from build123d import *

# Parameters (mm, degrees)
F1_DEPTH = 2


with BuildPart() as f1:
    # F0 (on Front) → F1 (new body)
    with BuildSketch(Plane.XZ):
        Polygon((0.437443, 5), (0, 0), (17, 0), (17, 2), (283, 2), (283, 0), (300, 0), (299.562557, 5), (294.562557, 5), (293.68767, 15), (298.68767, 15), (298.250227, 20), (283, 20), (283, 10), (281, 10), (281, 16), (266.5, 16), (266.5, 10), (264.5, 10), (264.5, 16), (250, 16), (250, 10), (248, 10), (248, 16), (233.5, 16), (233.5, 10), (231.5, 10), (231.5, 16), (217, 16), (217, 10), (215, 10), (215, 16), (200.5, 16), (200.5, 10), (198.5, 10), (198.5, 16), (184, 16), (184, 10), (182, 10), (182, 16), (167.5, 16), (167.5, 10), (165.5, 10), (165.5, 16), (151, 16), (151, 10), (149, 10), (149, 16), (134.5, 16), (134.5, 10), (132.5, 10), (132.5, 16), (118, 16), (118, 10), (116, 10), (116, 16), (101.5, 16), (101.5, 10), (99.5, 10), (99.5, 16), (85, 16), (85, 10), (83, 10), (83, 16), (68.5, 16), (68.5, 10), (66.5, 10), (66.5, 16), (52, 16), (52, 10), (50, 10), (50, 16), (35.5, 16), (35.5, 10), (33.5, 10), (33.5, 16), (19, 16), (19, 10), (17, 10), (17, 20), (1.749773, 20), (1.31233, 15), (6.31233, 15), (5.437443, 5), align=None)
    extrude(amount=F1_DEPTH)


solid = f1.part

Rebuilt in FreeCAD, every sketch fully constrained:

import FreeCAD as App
import Part
import Sketcher
Q = App.Units.Quantity

doc = App.newDocument("Part")
body = doc.addObject("PartDesign::Body", "Body")

sketch1 = body.newObject("Sketcher::SketchObject", "Sketch")
sketch1.AttachmentSupport = (doc.getObject("XZ_Plane"), [""])
sketch1.MapMode = "FlatFace"
sketch1.addGeometry([
    Part.LineSegment(App.Vector(0.4, 5, 0), App.Vector(0, 0, 0)),
    Part.LineSegment(App.Vector(0, 0, 0), App.Vector(17, 0, 0)),
    Part.LineSegment(App.Vector(17, 0, 0), App.Vector(17, 2, 0)),
    Part.LineSegment(App.Vector(17, 2, 0), App.Vector(283, 2, 0)),
    Part.LineSegment(App.Vector(283, 2, 0), App.Vector(283, 0, 0)),
    Part.LineSegment(App.Vector(283, 0, 0), App.Vector(300, 0, 0)),
    Part.LineSegment(App.Vector(300, 0, 0), App.Vector(299.6, 5, 0)),
    Part.LineSegment(App.Vector(299.6, 5, 0), App.Vector(294.6, 5, 0)),
    Part.LineSegment(App.Vector(294.6, 5, 0), App.Vector(293.7, 15, 0)),
    Part.LineSegment(App.Vector(293.7, 15, 0), App.Vector(298.7, 15, 0)),
    Part.LineSegment(App.Vector(298.7, 15, 0), App.Vector(298.3, 20, 0)),
    Part.LineSegment(App.Vector(298.3, 20, 0), App.Vector(283, 20, 0)),
    Part.LineSegment(App.Vector(283, 20, 0), App.Vector(283, 10, 0)),
    Part.LineSegment(App.Vector(283, 10, 0), App.Vector(281, 10, 0)),
    Part.LineSegment(App.Vector(281, 10, 0), App.Vector(281, 16, 0)),
    Part.LineSegment(App.Vector(281, 16, 0), App.Vector(266.5, 16, 0)),
    Part.LineSegment(App.Vector(266.5, 16, 0), App.Vector(266.5, 10, 0)),
    Part.LineSegment(App.Vector(266.5, 10, 0), App.Vector(264.5, 10, 0)),
    Part.LineSegment(App.Vector(264.5, 10, 0), App.Vector(264.5, 16, 0)),
    Part.LineSegment(App.Vector(264.5, 16, 0), App.Vector(250, 16, 0)),
    Part.LineSegment(App.Vector(250, 16, 0), App.Vector(250, 10, 0)),
    Part.LineSegment(App.Vector(250, 10, 0), App.Vector(248, 10, 0)),
    Part.LineSegment(App.Vector(248, 10, 0), App.Vector(248, 16, 0)),
    Part.LineSegment(App.Vector(248, 16, 0), App.Vector(233.5, 16, 0)),
    Part.LineSegment(App.Vector(233.5, 16, 0), App.Vector(233.5, 10, 0)),
    Part.LineSegment(App.Vector(233.5, 10, 0), App.Vector(231.5, 10, 0)),
    Part.LineSegment(App.Vector(231.5, 10, 0), App.Vector(231.5, 16, 0)),
    Part.LineSegment(App.Vector(231.5, 16, 0), App.Vector(217, 16, 0)),
    Part.LineSegment(App.Vector(217, 16, 0), App.Vector(217, 10, 0)),
    Part.LineSegment(App.Vector(217, 10, 0), App.Vector(215, 10, 0)),
    Part.LineSegment(App.Vector(215, 10, 0), App.Vector(215, 16, 0)),
    Part.LineSegment(App.Vector(215, 16, 0), App.Vector(200.5, 16, 0)),
    Part.LineSegment(App.Vector(200.5, 16, 0), App.Vector(200.5, 10, 0)),
    Part.LineSegment(App.Vector(200.5, 10, 0), App.Vector(198.5, 10, 0)),
    Part.LineSegment(App.Vector(198.5, 10, 0), App.Vector(198.5, 16, 0)),
    Part.LineSegment(App.Vector(198.5, 16, 0), App.Vector(184, 16, 0)),
    Part.LineSegment(App.Vector(184, 16, 0), App.Vector(184, 10, 0)),
    Part.LineSegment(App.Vector(184, 10, 0), App.Vector(182, 10, 0)),
    Part.LineSegment(App.Vector(182, 10, 0), App.Vector(182, 16, 0)),
    Part.LineSegment(App.Vector(182, 16, 0), App.Vector(167.5, 16, 0)),
    Part.LineSegment(App.Vector(167.5, 16, 0), App.Vector(167.5, 10, 0)),
    Part.LineSegment(App.Vector(167.5, 10, 0), App.Vector(165.5, 10, 0)),
    Part.LineSegment(App.Vector(165.5, 10, 0), App.Vector(165.5, 16, 0)),
    Part.LineSegment(App.Vector(165.5, 16, 0), App.Vector(151, 16, 0)),
    Part.LineSegment(App.Vector(151, 16, 0), App.Vector(151, 10, 0)),
    Part.LineSegment(App.Vector(151, 10, 0), App.Vector(149, 10, 0)),
    Part.LineSegment(App.Vector(149, 10, 0), App.Vector(149, 16, 0)),
    Part.LineSegment(App.Vector(149, 16, 0), App.Vector(134.5, 16, 0)),
    Part.LineSegment(App.Vector(134.5, 16, 0), App.Vector(134.5, 10, 0)),
    Part.LineSegment(App.Vector(134.5, 10, 0), App.Vector(132.5, 10, 0)),
    Part.LineSegment(App.Vector(132.5, 10, 0), App.Vector(132.5, 16, 0)),
    Part.LineSegment(App.Vector(132.5, 16, 0), App.Vector(118, 16, 0)),
    Part.LineSegment(App.Vector(118, 16, 0), App.Vector(118, 10, 0)),
    Part.LineSegment(App.Vector(118, 10, 0), App.Vector(116, 10, 0)),
    Part.LineSegment(App.Vector(116, 10, 0), App.Vector(116, 16, 0)),
    Part.LineSegment(App.Vector(116, 16, 0), App.Vector(101.5, 16, 0)),
    Part.LineSegment(App.Vector(101.5, 16, 0), App.Vector(101.5, 10, 0)),
    Part.LineSegment(App.Vector(101.5, 10, 0), App.Vector(99.5, 10, 0)),
    Part.LineSegment(App.Vector(99.5, 10, 0), App.Vector(99.5, 16, 0)),
    Part.LineSegment(App.Vector(99.5, 16, 0), App.Vector(85, 16, 0)),
    Part.LineSegment(App.Vector(85, 16, 0), App.Vector(85, 10, 0)),
    Part.LineSegment(App.Vector(85, 10, 0), App.Vector(83, 10, 0)),
    Part.LineSegment(App.Vector(83, 10, 0), App.Vector(83, 16, 0)),
    Part.LineSegment(App.Vector(83, 16, 0), App.Vector(68.5, 16, 0)),
    Part.LineSegment(App.Vector(68.5, 16, 0), App.Vector(68.5, 10, 0)),
    Part.LineSegment(App.Vector(68.5, 10, 0), App.Vector(66.5, 10, 0)),
    Part.LineSegment(App.Vector(66.5, 10, 0), App.Vector(66.5, 16, 0)),
    Part.LineSegment(App.Vector(66.5, 16, 0), App.Vector(52, 16, 0)),
    Part.LineSegment(App.Vector(52, 16, 0), App.Vector(52, 10, 0)),
    Part.LineSegment(App.Vector(52, 10, 0), App.Vector(50, 10, 0)),
    Part.LineSegment(App.Vector(50, 10, 0), App.Vector(50, 16, 0)),
    Part.LineSegment(App.Vector(50, 16, 0), App.Vector(35.5, 16, 0)),
    Part.LineSegment(App.Vector(35.5, 16, 0), App.Vector(35.5, 10, 0)),
    Part.LineSegment(App.Vector(35.5, 10, 0), App.Vector(33.5, 10, 0)),
    Part.LineSegment(App.Vector(33.5, 10, 0), App.Vector(33.5, 16, 0)),
    Part.LineSegment(App.Vector(33.5, 16, 0), App.Vector(19, 16, 0)),
    Part.LineSegment(App.Vector(19, 16, 0), App.Vector(19, 10, 0)),
    Part.LineSegment(App.Vector(19, 10, 0), App.Vector(17, 10, 0)),
    Part.LineSegment(App.Vector(17, 10, 0), App.Vector(17, 20, 0)),
    Part.LineSegment(App.Vector(17, 20, 0), App.Vector(1.7, 20, 0)),
    Part.LineSegment(App.Vector(1.7, 20, 0), App.Vector(1.3, 15, 0)),
    Part.LineSegment(App.Vector(1.3, 15, 0), App.Vector(6.3, 15, 0)),
    Part.LineSegment(App.Vector(6.3, 15, 0), App.Vector(5.4, 5, 0)),
    Part.LineSegment(App.Vector(5.4, 5, 0), App.Vector(0.4, 5, 0)),
], False)
sketch1.addConstraint([
    Sketcher.Constraint("Coincident", 0, 2, 1, 1),
    Sketcher.Constraint("Coincident", 1, 2, 2, 1),
    Sketcher.Constraint("Coincident", 2, 2, 3, 1),
    Sketcher.Constraint("Coincident", 3, 2, 4, 1),
    Sketcher.Constraint("Coincident", 4, 2, 5, 1),
    Sketcher.Constraint("Coincident", 5, 2, 6, 1),
    Sketcher.Constraint("Coincident", 6, 2, 7, 1),
    Sketcher.Constraint("Coincident", 7, 2, 8, 1),
    Sketcher.Constraint("Coincident", 8, 2, 9, 1),
    Sketcher.Constraint("Coincident", 9, 2, 10, 1),
    Sketcher.Constraint("Coincident", 10, 2, 11, 1),
    Sketcher.Constraint("Coincident", 11, 2, 12, 1),
    Sketcher.Constraint("Coincident", 12, 2, 13, 1),
    Sketcher.Constraint("Coincident", 13, 2, 14, 1),
    Sketcher.Constraint("Coincident", 14, 2, 15, 1),
    Sketcher.Constraint("Coincident", 15, 2, 16, 1),
    Sketcher.Constraint("Coincident", 16, 2, 17, 1),
    Sketcher.Constraint("Coincident", 17, 2, 18, 1),
    Sketcher.Constraint("Coincident", 18, 2, 19, 1),
    Sketcher.Constraint("Coincident", 19, 2, 20, 1),
    Sketcher.Constraint("Coincident", 20, 2, 21, 1),
    Sketcher.Constraint("Coincident", 21, 2, 22, 1),
    Sketcher.Constraint("Coincident", 22, 2, 23, 1),
    Sketcher.Constraint("Coincident", 23, 2, 24, 1),
    Sketcher.Constraint("Coincident", 24, 2, 25, 1),
    Sketcher.Constraint("Coincident", 25, 2, 26, 1),
    Sketcher.Constraint("Coincident", 26, 2, 27, 1),
    Sketcher.Constraint("Coincident", 27, 2, 28, 1),
    Sketcher.Constraint("Coincident", 28, 2, 29, 1),
    Sketcher.Constraint("Coincident", 29, 2, 30, 1),
    Sketcher.Constraint("Coincident", 30, 2, 31, 1),
    Sketcher.Constraint("Coincident", 31, 2, 32, 1),
    Sketcher.Constraint("Coincident", 32, 2, 33, 1),
    Sketcher.Constraint("Coincident", 33, 2, 34, 1),
    Sketcher.Constraint("Coincident", 34, 2, 35, 1),
    Sketcher.Constraint("Coincident", 35, 2, 36, 1),
    Sketcher.Constraint("Coincident", 36, 2, 37, 1),
    Sketcher.Constraint("Coincident", 37, 2, 38, 1),
    Sketcher.Constraint("Coincident", 38, 2, 39, 1),
    Sketcher.Constraint("Coincident", 39, 2, 40, 1),
    Sketcher.Constraint("Coincident", 40, 2, 41, 1),
    Sketcher.Constraint("Coincident", 41, 2, 42, 1),
    Sketcher.Constraint("Coincident", 42, 2, 43, 1),
    Sketcher.Constraint("Coincident", 43, 2, 44, 1),
    Sketcher.Constraint("Coincident", 44, 2, 45, 1),
    Sketcher.Constraint("Coincident", 45, 2, 46, 1),
    Sketcher.Constraint("Coincident", 46, 2, 47, 1),
    Sketcher.Constraint("Coincident", 47, 2, 48, 1),
    Sketcher.Constraint("Coincident", 48, 2, 49, 1),
    Sketcher.Constraint("Coincident", 49, 2, 50, 1),
    Sketcher.Constraint("Coincident", 50, 2, 51, 1),
    Sketcher.Constraint("Coincident", 51, 2, 52, 1),
    Sketcher.Constraint("Coincident", 52, 2, 53, 1),
    Sketcher.Constraint("Coincident", 53, 2, 54, 1),
    Sketcher.Constraint("Coincident", 54, 2, 55, 1),
    Sketcher.Constraint("Coincident", 55, 2, 56, 1),
    Sketcher.Constraint("Coincident", 56, 2, 57, 1),
    Sketcher.Constraint("Coincident", 57, 2, 58, 1),
    Sketcher.Constraint("Coincident", 58, 2, 59, 1),
    Sketcher.Constraint("Coincident", 59, 2, 60, 1),
    Sketcher.Constraint("Coincident", 60, 2, 61, 1),
    Sketcher.Constraint("Coincident", 61, 2, 62, 1),
    Sketcher.Constraint("Coincident", 62, 2, 63, 1),
    Sketcher.Constraint("Coincident", 63, 2, 64, 1),
    Sketcher.Constraint("Coincident", 64, 2, 65, 1),
    Sketcher.Constraint("Coincident", 65, 2, 66, 1),
    Sketcher.Constraint("Coincident", 66, 2, 67, 1),
    Sketcher.Constraint("Coincident", 67, 2, 68, 1),
    Sketcher.Constraint("Coincident", 68, 2, 69, 1),
    Sketcher.Constraint("Coincident", 69, 2, 70, 1),
    Sketcher.Constraint("Coincident", 70, 2, 71, 1),
    Sketcher.Constraint("Coincident", 71, 2, 72, 1),
    Sketcher.Constraint("Coincident", 72, 2, 73, 1),
    Sketcher.Constraint("Coincident", 73, 2, 74, 1),
    Sketcher.Constraint("Coincident", 74, 2, 75, 1),
    Sketcher.Constraint("Coincident", 75, 2, 76, 1),
    Sketcher.Constraint("Coincident", 76, 2, 77, 1),
    Sketcher.Constraint("Coincident", 77, 2, 78, 1),
    Sketcher.Constraint("Coincident", 78, 2, 79, 1),
    Sketcher.Constraint("Coincident", 79, 2, 80, 1),
    Sketcher.Constraint("Coincident", 80, 2, 81, 1),
    Sketcher.Constraint("Coincident", 81, 2, 82, 1),
    Sketcher.Constraint("Coincident", 82, 2, 83, 1),
    Sketcher.Constraint("Coincident", 83, 2, 0, 1),
    Sketcher.Constraint("Horizontal", 1),
    Sketcher.Constraint("Vertical", 2),
    Sketcher.Constraint("Horizontal", 3),
    Sketcher.Constraint("Vertical", 4),
    Sketcher.Constraint("Horizontal", 5),
    Sketcher.Constraint("Horizontal", 7),
    Sketcher.Constraint("Horizontal", 9),
    Sketcher.Constraint("Horizontal", 11),
    Sketcher.Constraint("Vertical", 12),
    Sketcher.Constraint("Horizontal", 13),
    Sketcher.Constraint("Vertical", 14),
    Sketcher.Constraint("Horizontal", 15),
    Sketcher.Constraint("Vertical", 16),
    Sketcher.Constraint("Horizontal", 17),
    Sketcher.Constraint("Vertical", 18),
    Sketcher.Constraint("Horizontal", 19),
    Sketcher.Constraint("Vertical", 20),
    Sketcher.Constraint("Horizontal", 21),
    Sketcher.Constraint("Vertical", 22),
    Sketcher.Constraint("Horizontal", 23),
    Sketcher.Constraint("Vertical", 24),
    Sketcher.Constraint("Horizontal", 25),
    Sketcher.Constraint("Vertical", 26),
    Sketcher.Constraint("Horizontal", 27),
    Sketcher.Constraint("Vertical", 28),
    Sketcher.Constraint("Horizontal", 29),
    Sketcher.Constraint("Vertical", 30),
    Sketcher.Constraint("Horizontal", 31),
    Sketcher.Constraint("Vertical", 32),
    Sketcher.Constraint("Horizontal", 33),
    Sketcher.Constraint("Vertical", 34),
    Sketcher.Constraint("Horizontal", 35),
    Sketcher.Constraint("Vertical", 36),
    Sketcher.Constraint("Horizontal", 37),
    Sketcher.Constraint("Vertical", 38),
    Sketcher.Constraint("Horizontal", 39),
    Sketcher.Constraint("Vertical", 40),
    Sketcher.Constraint("Horizontal", 41),
    Sketcher.Constraint("Vertical", 42),
    Sketcher.Constraint("Horizontal", 43),
    Sketcher.Constraint("Vertical", 44),
    Sketcher.Constraint("Horizontal", 45),
    Sketcher.Constraint("Vertical", 46),
    Sketcher.Constraint("Horizontal", 47),
    Sketcher.Constraint("Vertical", 48),
    Sketcher.Constraint("Horizontal", 49),
    Sketcher.Constraint("Vertical", 50),
    Sketcher.Constraint("Horizontal", 51),
    Sketcher.Constraint("Vertical", 52),
    Sketcher.Constraint("Horizontal", 53),
    Sketcher.Constraint("Vertical", 54),
    Sketcher.Constraint("Horizontal", 55),
    Sketcher.Constraint("Vertical", 56),
    Sketcher.Constraint("Horizontal", 57),
    Sketcher.Constraint("Vertical", 58),
    Sketcher.Constraint("Horizontal", 59),
    Sketcher.Constraint("Vertical", 60),
    Sketcher.Constraint("Horizontal", 61),
    Sketcher.Constraint("Vertical", 62),
    Sketcher.Constraint("Horizontal", 63),
    Sketcher.Constraint("Vertical", 64),
    Sketcher.Constraint("Horizontal", 65),
    Sketcher.Constraint("Vertical", 66),
    Sketcher.Constraint("Horizontal", 67),
    Sketcher.Constraint("Vertical", 68),
    Sketcher.Constraint("Horizontal", 69),
    Sketcher.Constraint("Vertical", 70),
    Sketcher.Constraint("Horizontal", 71),
    Sketcher.Constraint("Vertical", 72),
    Sketcher.Constraint("Horizontal", 73),
    Sketcher.Constraint("Vertical", 74),
    Sketcher.Constraint("Horizontal", 75),
    Sketcher.Constraint("Vertical", 76),
    Sketcher.Constraint("Horizontal", 77),
    Sketcher.Constraint("Vertical", 78),
    Sketcher.Constraint("Horizontal", 79),
    Sketcher.Constraint("Horizontal", 81),
    Sketcher.Constraint("Horizontal", 83),
    Sketcher.Constraint("Coincident", 0, 2, -1, 1),
    Sketcher.Constraint("PointOnObject", 4, 2, -1),
    Sketcher.Constraint("Parallel", 6, 8),
    Sketcher.Constraint("Parallel", 8, 10),
    Sketcher.Constraint("Parallel", 0, 80),
    Sketcher.Constraint("Parallel", 80, 82),
    Sketcher.Constraint("Horizontal", 13, 2, 16, 2),
    Sketcher.Constraint("Horizontal", 15, 2, 18, 2),
    Sketcher.Constraint("Horizontal", 17, 2, 20, 2),
    Sketcher.Constraint("Horizontal", 19, 2, 22, 2),
    Sketcher.Constraint("Horizontal", 21, 2, 24, 2),
    Sketcher.Constraint("Horizontal", 23, 2, 26, 2),
    Sketcher.Constraint("Horizontal", 25, 2, 28, 2),
    Sketcher.Constraint("Horizontal", 27, 2, 30, 2),
    Sketcher.Constraint("Horizontal", 29, 2, 32, 2),
    Sketcher.Constraint("Horizontal", 31, 2, 34, 2),
    Sketcher.Constraint("Horizontal", 33, 2, 36, 2),
    Sketcher.Constraint("Horizontal", 35, 2, 38, 2),
    Sketcher.Constraint("Horizontal", 37, 2, 40, 2),
    Sketcher.Constraint("Horizontal", 39, 2, 42, 2),
    Sketcher.Constraint("Horizontal", 41, 2, 44, 2),
    Sketcher.Constraint("Horizontal", 43, 2, 46, 2),
    Sketcher.Constraint("Horizontal", 45, 2, 48, 2),
    Sketcher.Constraint("Horizontal", 47, 2, 50, 2),
    Sketcher.Constraint("Horizontal", 49, 2, 52, 2),
    Sketcher.Constraint("Horizontal", 51, 2, 54, 2),
    Sketcher.Constraint("Horizontal", 53, 2, 56, 2),
    Sketcher.Constraint("Horizontal", 55, 2, 58, 2),
    Sketcher.Constraint("Horizontal", 57, 2, 60, 2),
    Sketcher.Constraint("Horizontal", 59, 2, 62, 2),
    Sketcher.Constraint("Horizontal", 61, 2, 64, 2),
    Sketcher.Constraint("Horizontal", 63, 2, 66, 2),
    Sketcher.Constraint("Horizontal", 65, 2, 68, 2),
    Sketcher.Constraint("Horizontal", 67, 2, 70, 2),
    Sketcher.Constraint("Horizontal", 69, 2, 72, 2),
    Sketcher.Constraint("Horizontal", 71, 2, 74, 2),
    Sketcher.Constraint("Horizontal", 73, 2, 76, 2),
    Sketcher.Constraint("Horizontal", 11, 2, 78, 2),
    Sketcher.Constraint("Horizontal", 9, 2, 80, 2),
    Sketcher.Constraint("Horizontal", 7, 2, 82, 2),
    Sketcher.Constraint("Vertical", 4, 2, 11, 2),
    Sketcher.Constraint("Vertical", 2, 2, 77, 2),
    Sketcher.Constraint("Equal", 1, 5),
    Sketcher.Constraint("Equal", 7, 9),
    Sketcher.Constraint("Equal", 13, 17),
    Sketcher.Constraint("Equal", 15, 19),
    Sketcher.Constraint("Equal", 17, 21),
    Sketcher.Constraint("Equal", 19, 23),
    Sketcher.Constraint("Equal", 21, 25),
    Sketcher.Constraint("Equal", 23, 27),
    Sketcher.Constraint("Equal", 25, 29),
    Sketcher.Constraint("Equal", 27, 31),
    Sketcher.Constraint("Equal", 29, 33),
    Sketcher.Constraint("Equal", 31, 35),
    Sketcher.Constraint("Equal", 33, 37),
    Sketcher.Constraint("Equal", 35, 39),
    Sketcher.Constraint("Equal", 37, 41),
    Sketcher.Constraint("Equal", 39, 43),
    Sketcher.Constraint("Equal", 41, 45),
    Sketcher.Constraint("Equal", 43, 47),
    Sketcher.Constraint("Equal", 45, 49),
    Sketcher.Constraint("Equal", 47, 51),
    Sketcher.Constraint("Equal", 49, 53),
    Sketcher.Constraint("Equal", 51, 55),
    Sketcher.Constraint("Equal", 53, 57),
    Sketcher.Constraint("Equal", 55, 59),
    Sketcher.Constraint("Equal", 57, 61),
    Sketcher.Constraint("Equal", 59, 63),
    Sketcher.Constraint("Equal", 61, 65),
    Sketcher.Constraint("Equal", 63, 67),
    Sketcher.Constraint("Equal", 65, 69),
    Sketcher.Constraint("Equal", 67, 71),
    Sketcher.Constraint("Equal", 69, 73),
    Sketcher.Constraint("Equal", 71, 75),
    Sketcher.Constraint("Equal", 73, 77),
    Sketcher.Constraint("Equal", 11, 79),
    Sketcher.Constraint("Equal", 9, 81),
    Sketcher.Constraint("Equal", 81, 83),
    Sketcher.Constraint("Equal", 77, 2),
    Sketcher.Constraint("Equal", 6, 10),
    Sketcher.Constraint("DistanceX", 1, 1, 1, 2, 17.0),
    Sketcher.Constraint("DistanceX", 3, 1, 3, 2, 266.0),
    Sketcher.Constraint("DistanceX", 7, 2, 7, 1, 5.0),
    Sketcher.Constraint("DistanceX", 13, 2, 13, 1, 2.0),
    Sketcher.Constraint("DistanceY", 12, 2, 12, 1, 10.0),
    Sketcher.Constraint("DistanceY", 14, 1, 14, 2, 6.0),
    Sketcher.Constraint("Angle", 0, Q("-94.999996 deg")),
    Sketcher.Constraint("DistanceY", -1, 1, 6, 2, 5.0),
    Sketcher.Constraint("DistanceY", -1, 1, 8, 2, 15.0),
])
pad1 = body.newObject("PartDesign::Pad", "Pad")
pad1.Profile = sketch1
pad1.Length = 2

doc.recompute()
